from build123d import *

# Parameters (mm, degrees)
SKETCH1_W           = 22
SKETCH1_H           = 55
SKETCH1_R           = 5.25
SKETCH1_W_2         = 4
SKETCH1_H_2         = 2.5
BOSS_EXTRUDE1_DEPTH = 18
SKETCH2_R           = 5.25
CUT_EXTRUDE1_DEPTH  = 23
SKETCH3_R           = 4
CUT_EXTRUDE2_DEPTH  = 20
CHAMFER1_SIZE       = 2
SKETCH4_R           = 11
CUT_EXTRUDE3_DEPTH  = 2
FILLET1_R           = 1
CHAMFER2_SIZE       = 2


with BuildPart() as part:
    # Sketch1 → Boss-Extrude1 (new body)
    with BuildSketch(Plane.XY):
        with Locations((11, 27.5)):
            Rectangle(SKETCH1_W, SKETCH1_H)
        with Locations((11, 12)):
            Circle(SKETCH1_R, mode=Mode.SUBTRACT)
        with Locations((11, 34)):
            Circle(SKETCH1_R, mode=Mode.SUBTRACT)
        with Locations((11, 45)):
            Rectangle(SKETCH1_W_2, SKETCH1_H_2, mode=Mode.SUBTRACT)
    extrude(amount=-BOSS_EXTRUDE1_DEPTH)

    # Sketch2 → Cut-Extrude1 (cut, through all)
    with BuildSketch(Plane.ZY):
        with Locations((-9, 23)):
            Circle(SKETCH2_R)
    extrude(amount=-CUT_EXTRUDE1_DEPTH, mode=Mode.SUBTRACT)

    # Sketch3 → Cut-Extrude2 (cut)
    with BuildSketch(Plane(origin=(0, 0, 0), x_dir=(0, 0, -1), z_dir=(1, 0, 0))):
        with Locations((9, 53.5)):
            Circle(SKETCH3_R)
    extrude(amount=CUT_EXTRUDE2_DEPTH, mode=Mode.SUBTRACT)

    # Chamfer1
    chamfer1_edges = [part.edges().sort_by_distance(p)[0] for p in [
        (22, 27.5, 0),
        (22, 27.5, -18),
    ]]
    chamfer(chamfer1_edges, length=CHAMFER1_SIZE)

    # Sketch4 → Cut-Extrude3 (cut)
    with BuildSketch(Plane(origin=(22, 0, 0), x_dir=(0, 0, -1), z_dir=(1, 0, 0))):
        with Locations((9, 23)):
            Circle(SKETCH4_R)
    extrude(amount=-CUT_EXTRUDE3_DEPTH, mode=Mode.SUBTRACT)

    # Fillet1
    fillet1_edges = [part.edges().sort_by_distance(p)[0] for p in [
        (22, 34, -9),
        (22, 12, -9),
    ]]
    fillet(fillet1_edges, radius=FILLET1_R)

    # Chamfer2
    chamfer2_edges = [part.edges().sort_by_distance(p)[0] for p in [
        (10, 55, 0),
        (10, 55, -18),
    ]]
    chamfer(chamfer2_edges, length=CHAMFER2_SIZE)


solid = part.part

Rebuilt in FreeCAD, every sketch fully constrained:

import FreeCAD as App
import Part
import Sketcher


def edges_at(feature, points):
    """Names of the edges that pass closest to the given points."""
    edges = feature.Shape.Edges
    near = lambda p: min(range(len(edges)), key=lambda i: edges[i].distToShape(Part.Vertex(*p))[0])
    return sorted({f"Edge{near(p) + 1}" for p in points})


def add_polygon(sketch, points):
    """Adds a closed chain of lines whose ends are joined by coincident constraints."""
    first, n = sketch.GeometryCount, len(points)
    for a, b in zip(points, points[1:] + points[:1]):
        sketch.addGeometry(Part.LineSegment(App.Vector(*a, 0), App.Vector(*b, 0)), False)
    for i in range(n):
        sketch.addConstraint(Sketcher.Constraint("Coincident", first + i, 2, first + (i + 1) % n, 1))

doc = App.newDocument("Part")
body = doc.addObject("PartDesign::Body", "Body")

# Sketch on XY plane
sketch1 = body.newObject("Sketcher::SketchObject", "Sketch")
sketch1.AttachmentSupport = (doc.getObject("XY_Plane"), [""])
sketch1.MapMode = "FlatFace"
add_polygon(sketch1, [(0, 55), (0, 0), (22, 0), (22, 55)])  # lines 0-3
sketch1.addGeometry(Part.Circle(App.Vector(11, 12, 0), App.Vector(0, 0, 1), 5.2), False)  # 4
sketch1.addGeometry(Part.Circle(App.Vector(11, 34, 0), App.Vector(0, 0, 1), 5.2), False)  # 5
add_polygon(sketch1, [(13, 43.8), (9, 43.8), (9, 46.2), (13, 46.2)])  # lines 6-9
sketch1.addConstraint([
    Sketcher.Constraint("Vertical", 0),
    Sketcher.Constraint("Horizontal", 1),
    Sketcher.Constraint("Vertical", 2),
    Sketcher.Constraint("Horizontal", 3),
    Sketcher.Constraint("Horizontal", 6),
    Sketcher.Constraint("Vertical", 7),
    Sketcher.Constraint("Horizontal", 8),
    Sketcher.Constraint("Vertical", 9),
    Sketcher.Constraint("Coincident", 0, 2, -1, 1),
    Sketcher.Constraint("Equal", 4, 5),
    Sketcher.Constraint("Vertical", 4, 3, 5, 3),
    Sketcher.Constraint("Diameter", 4, 10.5),
    Sketcher.Constraint("DistanceX", 1, 1, 1, 2, 22.0),
    Sketcher.Constraint("DistanceX", 6, 2, 6, 1, 4.0),
    Sketcher.Constraint("DistanceY", 0, 2, 0, 1, 55.0),
    Sketcher.Constraint("DistanceY", 7, 1, 7, 2, 2.5),
    Sketcher.Constraint("DistanceX", -1, 1, 4, 3, 11.0),
    Sketcher.Constraint("DistanceY", -1, 1, 4, 3, 12.0),
    Sketcher.Constraint("DistanceY", -1, 1, 5, 3, 34.0),
    Sketcher.Constraint("DistanceX", -1, 1, 6, 2, 9.0),
    Sketcher.Constraint("DistanceY", -1, 1, 6, 2, 43.75),
])
pad1 = body.newObject("PartDesign::Pad", "Pad")
pad1.Profile = sketch1
pad1.Length = 18
pad1.Reversed = True

# Sketch on YZ plane
sketch2 = body.newObject("Sketcher::SketchObject", "Sketch001")
sketch2.AttachmentSupport = (doc.getObject("YZ_Plane"), [""])
sketch2.MapMode = "FlatFace"
sketch2.addGeometry(Part.Circle(App.Vector(23, -9, 0), App.Vector(0, 0, 1), 5), False)
sketch2.addConstraint([
    Sketcher.Constraint("Diameter", 0, 10.5),
    Sketcher.Constraint("DistanceX", -1, 1, 0, 3, 23.0),
    Sketcher.Constraint("DistanceY", 0, 3, -1, 1, 9.0),
])
pocket1 = body.newObject("PartDesign::Pocket", "Pocket")
pocket1.Profile = sketch2
pocket1.Type = "ThroughAll"
pocket1.Reversed = True

# Sketch on YZ plane
sketch3 = body.newObject("Sketcher::SketchObject", "Sketch002")
sketch3.AttachmentSupport = (doc.getObject("YZ_Plane"), [""])
sketch3.MapMode = "FlatFace"
sketch3.addGeometry(Part.Circle(App.Vector(53.5, -9, 0), App.Vector(0, 0, 1), 4), False)
sketch3.addConstraint([
    Sketcher.Constraint("Diameter", 0, 8.0),
    Sketcher.Constraint("DistanceY", 0, 3, -1, 1, 9.0),
    Sketcher.Constraint("DistanceX", -1, 1, 0, 3, 53.5),
])
pocket2 = body.newObject("PartDesign::Pocket", "Pocket001")
pocket2.Profile = sketch3
pocket2.Length = 20
pocket2.Reversed = True
doc.recompute()

chamfer = body.newObject("PartDesign::Chamfer", "Chamfer")
chamfer.Base = (pocket2, edges_at(pocket2, [(22, 27.5, 0), (22, 27.5, -18)]))
chamfer.Size = 2

# Sketch on YZ plane
sketch4 = body.newObject("Sketcher::SketchObject", "Sketch003")
sketch4.AttachmentSupport = (doc.getObject("YZ_Plane"), [""])
sketch4.MapMode = "FlatFace"
sketch4.AttachmentOffset = App.Placement(App.Vector(0, 0, 22), App.Rotation())
sketch4.addGeometry(Part.Circle(App.Vector(23, -9, 0), App.Vector(0, 0, 1), 11), False)
sketch4.addConstraint([
    Sketcher.Constraint("Diameter", 0, 22.0),
    Sketcher.Constraint("DistanceX", -1, 1, 0, 3, 23.0),
    Sketcher.Constraint("DistanceY", 0, 3, -1, 1, 9.0),
])
pocket3 = body.newObject("PartDesign::Pocket", "Pocket002")
pocket3.Profile = sketch4
pocket3.Length = 2
doc.recompute()

fillet = body.newObject("PartDesign::Fillet", "Fillet")
fillet.Base = (pocket3, edges_at(pocket3, [(22, 34, -9), (22, 12, -9)]))
fillet.Radius = 1
doc.recompute()

chamfer2 = body.newObject("PartDesign::Chamfer", "Chamfer001")
chamfer2.Base = (fillet, edges_at(fillet, [(10, 55, 0), (10, 55, -18)]))
chamfer2.Size = 2

doc.recompute()
